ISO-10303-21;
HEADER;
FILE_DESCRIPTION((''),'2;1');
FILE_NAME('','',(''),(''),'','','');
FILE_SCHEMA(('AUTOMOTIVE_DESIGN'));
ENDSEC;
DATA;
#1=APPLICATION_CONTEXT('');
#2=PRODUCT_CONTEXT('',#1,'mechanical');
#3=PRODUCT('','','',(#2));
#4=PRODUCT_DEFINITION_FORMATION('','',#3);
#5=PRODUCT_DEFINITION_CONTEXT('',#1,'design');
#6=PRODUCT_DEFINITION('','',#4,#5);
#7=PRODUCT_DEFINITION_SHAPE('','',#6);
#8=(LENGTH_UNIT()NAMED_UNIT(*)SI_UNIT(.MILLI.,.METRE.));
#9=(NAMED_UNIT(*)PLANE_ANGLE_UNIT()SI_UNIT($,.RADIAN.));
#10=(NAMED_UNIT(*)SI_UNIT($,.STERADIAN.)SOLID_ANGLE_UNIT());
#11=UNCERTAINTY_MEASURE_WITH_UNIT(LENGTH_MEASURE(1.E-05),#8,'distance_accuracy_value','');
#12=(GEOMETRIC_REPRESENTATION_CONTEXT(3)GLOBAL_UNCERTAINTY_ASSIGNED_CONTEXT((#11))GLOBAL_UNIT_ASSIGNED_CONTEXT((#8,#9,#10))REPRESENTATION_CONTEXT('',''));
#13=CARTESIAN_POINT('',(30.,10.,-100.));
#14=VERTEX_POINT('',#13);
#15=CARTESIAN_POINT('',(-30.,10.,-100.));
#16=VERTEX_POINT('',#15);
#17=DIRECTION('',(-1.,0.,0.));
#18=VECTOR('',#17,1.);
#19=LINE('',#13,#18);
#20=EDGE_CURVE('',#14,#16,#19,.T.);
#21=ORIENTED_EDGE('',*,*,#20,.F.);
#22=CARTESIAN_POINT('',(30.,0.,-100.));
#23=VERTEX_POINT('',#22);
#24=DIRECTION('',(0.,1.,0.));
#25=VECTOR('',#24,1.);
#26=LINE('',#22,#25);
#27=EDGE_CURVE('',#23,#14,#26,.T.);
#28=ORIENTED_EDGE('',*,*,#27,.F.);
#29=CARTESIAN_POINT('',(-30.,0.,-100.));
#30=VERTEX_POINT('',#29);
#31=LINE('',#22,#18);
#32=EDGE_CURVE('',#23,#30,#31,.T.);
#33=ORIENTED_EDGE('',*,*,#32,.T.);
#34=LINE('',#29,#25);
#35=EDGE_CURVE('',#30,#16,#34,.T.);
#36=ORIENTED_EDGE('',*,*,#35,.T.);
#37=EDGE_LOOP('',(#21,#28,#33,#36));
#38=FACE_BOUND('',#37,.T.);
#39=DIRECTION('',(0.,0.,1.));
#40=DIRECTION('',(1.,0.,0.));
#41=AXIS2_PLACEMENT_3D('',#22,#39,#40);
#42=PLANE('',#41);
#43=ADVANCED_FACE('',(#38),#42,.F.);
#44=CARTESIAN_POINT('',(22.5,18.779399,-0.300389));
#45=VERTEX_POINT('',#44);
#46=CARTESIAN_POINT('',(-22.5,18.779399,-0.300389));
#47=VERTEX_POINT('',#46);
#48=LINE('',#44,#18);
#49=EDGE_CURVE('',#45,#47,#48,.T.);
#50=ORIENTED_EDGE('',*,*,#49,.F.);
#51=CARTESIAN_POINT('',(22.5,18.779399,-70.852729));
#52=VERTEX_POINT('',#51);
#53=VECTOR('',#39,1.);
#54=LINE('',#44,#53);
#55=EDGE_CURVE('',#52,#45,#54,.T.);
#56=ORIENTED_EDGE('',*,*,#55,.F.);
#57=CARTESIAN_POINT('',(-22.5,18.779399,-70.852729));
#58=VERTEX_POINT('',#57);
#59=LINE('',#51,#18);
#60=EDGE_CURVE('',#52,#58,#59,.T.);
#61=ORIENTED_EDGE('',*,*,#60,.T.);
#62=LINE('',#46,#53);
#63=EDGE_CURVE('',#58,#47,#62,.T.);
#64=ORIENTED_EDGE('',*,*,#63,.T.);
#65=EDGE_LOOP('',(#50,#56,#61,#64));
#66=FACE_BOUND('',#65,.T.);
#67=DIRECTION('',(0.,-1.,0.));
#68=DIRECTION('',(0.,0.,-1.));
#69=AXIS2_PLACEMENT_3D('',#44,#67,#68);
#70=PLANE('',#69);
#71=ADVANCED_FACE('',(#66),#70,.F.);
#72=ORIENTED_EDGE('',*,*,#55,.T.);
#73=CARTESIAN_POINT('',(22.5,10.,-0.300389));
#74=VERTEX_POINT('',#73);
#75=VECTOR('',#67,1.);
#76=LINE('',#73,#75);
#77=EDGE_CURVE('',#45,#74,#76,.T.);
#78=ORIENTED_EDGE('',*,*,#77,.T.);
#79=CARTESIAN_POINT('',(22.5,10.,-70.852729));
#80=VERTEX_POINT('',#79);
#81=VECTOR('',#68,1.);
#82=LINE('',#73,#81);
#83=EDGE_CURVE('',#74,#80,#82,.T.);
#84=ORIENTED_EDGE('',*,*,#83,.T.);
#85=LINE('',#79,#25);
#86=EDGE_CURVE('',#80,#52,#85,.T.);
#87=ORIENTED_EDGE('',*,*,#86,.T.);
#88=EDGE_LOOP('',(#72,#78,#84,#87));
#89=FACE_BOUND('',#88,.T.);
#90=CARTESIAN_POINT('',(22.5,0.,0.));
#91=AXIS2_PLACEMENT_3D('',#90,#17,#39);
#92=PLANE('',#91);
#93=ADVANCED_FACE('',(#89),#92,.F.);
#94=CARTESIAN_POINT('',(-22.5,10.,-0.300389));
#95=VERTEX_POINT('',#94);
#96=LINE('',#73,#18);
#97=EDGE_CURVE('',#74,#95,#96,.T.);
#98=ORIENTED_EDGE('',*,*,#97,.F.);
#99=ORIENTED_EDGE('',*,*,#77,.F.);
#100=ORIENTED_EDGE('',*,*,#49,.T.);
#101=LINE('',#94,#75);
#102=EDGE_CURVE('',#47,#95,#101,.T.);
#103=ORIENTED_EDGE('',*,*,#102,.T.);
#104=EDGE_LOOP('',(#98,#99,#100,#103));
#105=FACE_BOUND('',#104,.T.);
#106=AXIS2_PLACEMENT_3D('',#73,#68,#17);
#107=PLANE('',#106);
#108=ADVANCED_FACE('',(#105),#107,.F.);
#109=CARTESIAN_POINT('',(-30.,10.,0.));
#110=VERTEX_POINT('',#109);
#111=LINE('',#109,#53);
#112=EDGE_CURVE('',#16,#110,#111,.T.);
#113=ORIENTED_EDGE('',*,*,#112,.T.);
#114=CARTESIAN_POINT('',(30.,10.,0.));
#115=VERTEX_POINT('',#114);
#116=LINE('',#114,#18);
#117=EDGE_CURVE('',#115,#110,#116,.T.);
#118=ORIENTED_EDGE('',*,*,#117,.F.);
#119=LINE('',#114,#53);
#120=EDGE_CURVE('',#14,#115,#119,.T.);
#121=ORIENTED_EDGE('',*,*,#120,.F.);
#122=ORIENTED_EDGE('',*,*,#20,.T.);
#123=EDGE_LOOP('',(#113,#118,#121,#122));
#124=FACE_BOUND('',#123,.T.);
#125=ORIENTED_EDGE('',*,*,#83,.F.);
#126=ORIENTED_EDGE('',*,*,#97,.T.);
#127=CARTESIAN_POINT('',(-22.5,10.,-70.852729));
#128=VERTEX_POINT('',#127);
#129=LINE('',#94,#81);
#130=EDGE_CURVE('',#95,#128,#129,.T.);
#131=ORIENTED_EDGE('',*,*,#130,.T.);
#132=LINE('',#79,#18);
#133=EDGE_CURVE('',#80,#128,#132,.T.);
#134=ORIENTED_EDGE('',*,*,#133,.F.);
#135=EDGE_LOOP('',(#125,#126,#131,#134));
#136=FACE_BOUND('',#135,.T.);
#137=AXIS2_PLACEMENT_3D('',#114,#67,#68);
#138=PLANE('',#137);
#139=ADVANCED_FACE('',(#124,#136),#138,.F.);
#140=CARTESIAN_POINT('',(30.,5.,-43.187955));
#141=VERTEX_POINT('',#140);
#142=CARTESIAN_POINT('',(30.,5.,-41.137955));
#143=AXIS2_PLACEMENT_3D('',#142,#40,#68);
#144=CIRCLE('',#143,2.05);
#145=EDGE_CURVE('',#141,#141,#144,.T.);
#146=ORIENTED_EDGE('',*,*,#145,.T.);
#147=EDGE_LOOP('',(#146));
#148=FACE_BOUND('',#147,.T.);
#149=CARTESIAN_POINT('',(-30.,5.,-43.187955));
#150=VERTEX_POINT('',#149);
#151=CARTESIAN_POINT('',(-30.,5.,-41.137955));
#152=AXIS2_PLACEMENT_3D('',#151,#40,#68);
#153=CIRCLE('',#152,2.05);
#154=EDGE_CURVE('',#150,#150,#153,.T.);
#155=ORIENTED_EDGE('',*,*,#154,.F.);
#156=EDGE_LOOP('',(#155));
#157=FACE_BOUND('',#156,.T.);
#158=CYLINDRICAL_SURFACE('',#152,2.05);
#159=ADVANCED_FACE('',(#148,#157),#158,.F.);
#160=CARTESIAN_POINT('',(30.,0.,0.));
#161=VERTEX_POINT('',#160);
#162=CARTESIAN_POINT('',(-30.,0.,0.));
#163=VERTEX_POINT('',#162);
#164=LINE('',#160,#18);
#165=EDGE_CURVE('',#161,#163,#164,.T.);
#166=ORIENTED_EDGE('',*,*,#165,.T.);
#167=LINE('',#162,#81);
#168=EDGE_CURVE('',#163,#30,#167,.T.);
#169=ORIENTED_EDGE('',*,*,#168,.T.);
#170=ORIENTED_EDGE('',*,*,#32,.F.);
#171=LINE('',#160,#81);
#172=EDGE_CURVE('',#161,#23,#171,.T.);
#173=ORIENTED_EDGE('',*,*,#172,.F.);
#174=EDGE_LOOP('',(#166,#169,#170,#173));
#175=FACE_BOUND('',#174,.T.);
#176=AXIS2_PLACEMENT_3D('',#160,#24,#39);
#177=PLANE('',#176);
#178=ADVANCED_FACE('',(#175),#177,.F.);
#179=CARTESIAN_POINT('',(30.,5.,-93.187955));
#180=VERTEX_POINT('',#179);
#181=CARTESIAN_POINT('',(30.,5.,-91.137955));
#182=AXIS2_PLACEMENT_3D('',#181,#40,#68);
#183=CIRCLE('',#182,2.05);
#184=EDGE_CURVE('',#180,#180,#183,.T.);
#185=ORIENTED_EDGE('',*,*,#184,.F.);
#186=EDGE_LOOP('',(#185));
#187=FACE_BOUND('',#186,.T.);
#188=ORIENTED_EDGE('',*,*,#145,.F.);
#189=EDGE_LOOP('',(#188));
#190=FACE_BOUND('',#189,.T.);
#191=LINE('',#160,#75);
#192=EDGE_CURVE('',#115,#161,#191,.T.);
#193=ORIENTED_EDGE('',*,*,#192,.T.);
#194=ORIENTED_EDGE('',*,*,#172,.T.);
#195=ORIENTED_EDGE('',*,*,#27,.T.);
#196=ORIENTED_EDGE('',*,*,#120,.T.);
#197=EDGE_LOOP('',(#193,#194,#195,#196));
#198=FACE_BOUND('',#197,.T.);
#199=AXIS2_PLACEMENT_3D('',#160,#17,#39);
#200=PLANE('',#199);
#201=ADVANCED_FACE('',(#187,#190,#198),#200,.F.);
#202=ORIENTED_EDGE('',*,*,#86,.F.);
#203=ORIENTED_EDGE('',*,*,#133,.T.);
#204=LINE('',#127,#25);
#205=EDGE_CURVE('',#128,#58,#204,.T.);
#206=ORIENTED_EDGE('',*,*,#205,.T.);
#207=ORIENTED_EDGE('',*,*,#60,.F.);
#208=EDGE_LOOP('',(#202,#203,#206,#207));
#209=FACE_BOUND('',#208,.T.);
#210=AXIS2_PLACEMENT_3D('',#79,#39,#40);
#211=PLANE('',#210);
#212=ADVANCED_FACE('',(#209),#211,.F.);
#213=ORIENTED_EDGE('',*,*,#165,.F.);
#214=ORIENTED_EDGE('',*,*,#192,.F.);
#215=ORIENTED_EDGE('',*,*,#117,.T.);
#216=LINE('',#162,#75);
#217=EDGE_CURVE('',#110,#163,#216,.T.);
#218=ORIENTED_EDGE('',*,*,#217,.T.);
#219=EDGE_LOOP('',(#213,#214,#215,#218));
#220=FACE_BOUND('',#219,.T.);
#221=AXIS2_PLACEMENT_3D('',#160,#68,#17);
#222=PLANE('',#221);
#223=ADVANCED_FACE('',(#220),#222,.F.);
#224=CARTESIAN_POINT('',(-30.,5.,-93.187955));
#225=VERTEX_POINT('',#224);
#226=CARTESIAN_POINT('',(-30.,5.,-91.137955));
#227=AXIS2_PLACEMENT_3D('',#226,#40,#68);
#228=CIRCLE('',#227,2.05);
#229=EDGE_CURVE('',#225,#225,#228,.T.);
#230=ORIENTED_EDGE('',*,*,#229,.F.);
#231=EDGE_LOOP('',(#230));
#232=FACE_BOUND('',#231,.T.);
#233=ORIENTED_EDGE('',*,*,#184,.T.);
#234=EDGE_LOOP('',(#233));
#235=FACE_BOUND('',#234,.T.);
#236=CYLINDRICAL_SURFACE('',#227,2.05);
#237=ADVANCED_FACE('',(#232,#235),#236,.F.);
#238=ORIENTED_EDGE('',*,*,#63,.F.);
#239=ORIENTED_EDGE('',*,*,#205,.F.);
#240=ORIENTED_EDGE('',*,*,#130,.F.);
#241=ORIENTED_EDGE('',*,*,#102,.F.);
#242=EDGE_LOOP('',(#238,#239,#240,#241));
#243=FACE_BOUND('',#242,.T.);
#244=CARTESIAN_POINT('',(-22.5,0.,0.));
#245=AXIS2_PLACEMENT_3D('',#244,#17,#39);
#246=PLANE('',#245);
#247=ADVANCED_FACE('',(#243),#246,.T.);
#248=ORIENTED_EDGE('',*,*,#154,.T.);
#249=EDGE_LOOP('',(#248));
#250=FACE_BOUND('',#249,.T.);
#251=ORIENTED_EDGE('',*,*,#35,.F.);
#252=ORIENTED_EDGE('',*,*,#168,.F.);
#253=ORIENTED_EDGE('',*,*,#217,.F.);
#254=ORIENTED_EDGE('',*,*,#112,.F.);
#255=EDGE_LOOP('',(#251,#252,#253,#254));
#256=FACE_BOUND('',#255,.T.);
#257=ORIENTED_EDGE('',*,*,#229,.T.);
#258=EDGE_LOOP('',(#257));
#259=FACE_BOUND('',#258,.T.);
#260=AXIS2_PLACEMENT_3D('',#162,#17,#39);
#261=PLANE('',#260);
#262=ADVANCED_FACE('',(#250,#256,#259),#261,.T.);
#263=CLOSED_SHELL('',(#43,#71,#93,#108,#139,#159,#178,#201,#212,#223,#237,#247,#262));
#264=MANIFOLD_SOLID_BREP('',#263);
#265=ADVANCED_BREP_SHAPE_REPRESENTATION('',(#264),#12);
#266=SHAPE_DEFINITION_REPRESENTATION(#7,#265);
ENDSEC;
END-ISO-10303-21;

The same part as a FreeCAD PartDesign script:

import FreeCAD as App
import Part
import Sketcher

doc = App.newDocument("Part")
body = doc.addObject("PartDesign::Body", "Body")

# Sketch on YZ plane
sketch1 = body.newObject("Sketcher::SketchObject", "Sketch")
sketch1.AttachmentSupport = (doc.getObject("YZ_Plane"), [""])
sketch1.MapMode = "FlatFace"
sketch1.addGeometry(Part.LineSegment(App.Vector(10, 0, 0), App.Vector(0, 0, 0)), False)
sketch1.addGeometry(Part.LineSegment(App.Vector(0, 0, 0), App.Vector(0, -100, 0)), False)
sketch1.addGeometry(Part.LineSegment(App.Vector(0, -100, 0), App.Vector(10, -100, 0)), False)
sketch1.addGeometry(Part.LineSegment(App.Vector(10, -100, 0), App.Vector(10, 0, 0)), False)
sketch1.addConstraint(Sketcher.Constraint("Coincident", 0, 2, 1, 1))
sketch1.addConstraint(Sketcher.Constraint("Coincident", 1, 2, 2, 1))
sketch1.addConstraint(Sketcher.Constraint("Coincident", 2, 2, 3, 1))
sketch1.addConstraint(Sketcher.Constraint("Coincident", 3, 2, 0, 1))
sketch1.addConstraint(Sketcher.Constraint("Horizontal", 0))
sketch1.addConstraint(Sketcher.Constraint("Vertical", 1))
sketch1.addConstraint(Sketcher.Constraint("Horizontal", 2))
sketch1.addConstraint(Sketcher.Constraint("Vertical", 3))
sketch1.addConstraint(Sketcher.Constraint("Coincident", 0, 2, -1, 1))
sketch1.addConstraint(Sketcher.Constraint("DistanceX", 0, 2, 0, 1, 10.0))
sketch1.addConstraint(Sketcher.Constraint("DistanceY", 1, 2, 1, 1, 100.0))
pad1 = body.newObject("PartDesign::Pad", "Pad")
pad1.Profile = sketch1
pad1.Length = 60
pad1.Midplane = True

# Sketch on YZ plane
sketch2 = body.newObject("Sketcher::SketchObject", "Sketch001")
sketch2.AttachmentSupport = (doc.getObject("YZ_Plane"), [""])
sketch2.MapMode = "FlatFace"
sketch2.addGeometry(Part.Circle(App.Vector(5, -41.137955, 0), App.Vector(0, 0, 1), 2.05), False)
sketch2.addGeometry(Part.Circle(App.Vector(5, -91.137955, 0), App.Vector(0, 0, 1), 2.05), False)
sketch2.addConstraint(Sketcher.Constraint("Equal", 0, 1))
sketch2.addConstraint(Sketcher.Constraint("Vertical", 0, 3, 1, 3))
sketch2.addConstraint(Sketcher.Constraint("Diameter", 0, 4.1))
sketch2.addConstraint(Sketcher.Constraint("DistanceX", -1, 1, 0, 3, 5.0))
sketch2.addConstraint(Sketcher.Constraint("DistanceY", 1, 3, 0, 3, 50.0))
sketch2.addConstraint(Sketcher.Constraint("DistanceY", 0, 3, -1, 1, 41.137955))
pocket1 = body.newObject("PartDesign::Pocket", "Pocket")
pocket1.Profile = sketch2
pocket1.Type = "ThroughAll"
pocket1.Midplane = True

# Sketch on YZ plane
sketch3 = body.newObject("Sketcher::SketchObject", "Sketch002")
sketch3.AttachmentSupport = (doc.getObject("YZ_Plane"), [""])
sketch3.MapMode = "FlatFace"
sketch3.addGeometry(Part.LineSegment(App.Vector(18.779399, -0.300389, 0), App.Vector(10, -0.300389, 0)), False)
sketch3.addGeometry(Part.LineSegment(App.Vector(10, -0.300389, 0), App.Vector(10, -70.852729, 0)), False)
sketch3.addGeometry(Part.LineSegment(App.Vector(10, -70.852729, 0), App.Vector(18.779399, -70.852729, 0)), False)
sketch3.addGeometry(Part.LineSegment(App.Vector(18.779399, -70.852729, 0), App.Vector(18.779399, -0.300389, 0)), False)
sketch3.addConstraint(Sketcher.Constraint("Coincident", 0, 2, 1, 1))
sketch3.addConstraint(Sketcher.Constraint("Coincident", 1, 2, 2, 1))
sketch3.addConstraint(Sketcher.Constraint("Coincident", 2, 2, 3, 1))
sketch3.addConstraint(Sketcher.Constraint("Coincident", 3, 2, 0, 1))
sketch3.addConstraint(Sketcher.Constraint("Horizontal", 0))
sketch3.addConstraint(Sketcher.Constraint("Vertical", 1))
sketch3.addConstraint(Sketcher.Constraint("Horizontal", 2))
sketch3.addConstraint(Sketcher.Constraint("Vertical", 3))
sketch3.addConstraint(Sketcher.Constraint("DistanceX", -1, 1, 0, 2, 10.0))
sketch3.addConstraint(Sketcher.Constraint("DistanceX", 0, 2, 0, 1, 8.779399))
sketch3.addConstraint(Sketcher.Constraint("DistanceY", 1, 2, 1, 1, 70.55234))
sketch3.addConstraint(Sketcher.Constraint("DistanceY", 0, 2, -1, 1, 0.300389))
pad2 = body.newObject("PartDesign::Pad", "Pad001")
pad2.Profile = sketch3
pad2.Length = 45
pad2.Midplane = True

doc.recompute()
